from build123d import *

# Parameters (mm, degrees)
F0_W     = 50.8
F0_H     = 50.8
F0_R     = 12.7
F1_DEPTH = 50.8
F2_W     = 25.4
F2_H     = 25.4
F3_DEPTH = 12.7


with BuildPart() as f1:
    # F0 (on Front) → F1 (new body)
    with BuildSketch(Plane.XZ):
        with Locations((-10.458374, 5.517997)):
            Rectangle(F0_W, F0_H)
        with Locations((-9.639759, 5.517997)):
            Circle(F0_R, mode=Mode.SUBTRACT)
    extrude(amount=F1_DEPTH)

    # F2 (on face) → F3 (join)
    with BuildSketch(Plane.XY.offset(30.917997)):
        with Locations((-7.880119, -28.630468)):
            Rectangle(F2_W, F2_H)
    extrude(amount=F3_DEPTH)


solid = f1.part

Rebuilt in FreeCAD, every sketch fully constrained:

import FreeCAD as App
import Part
import Sketcher

V = App.Vector
Q = App.Units.Quantity


def add_polygon(sketch, points):
    """Adds a closed chain of lines whose ends are joined by coincident constraints."""
    first, n = sketch.GeometryCount, len(points)
    for a, b in zip(points, points[1:] + points[:1]):
        sketch.addGeometry(Part.LineSegment(App.Vector(*a, 0), App.Vector(*b, 0)), False)
    for i in range(n):
        sketch.addConstraint(Sketcher.Constraint("Coincident", first + i, 2, first + (i + 1) % n, 1))

doc = App.newDocument("Part")
body = doc.addObject("PartDesign::Body", "Body")

sketch1 = body.newObject("Sketcher::SketchObject", "Sketch")
sketch1.AttachmentSupport = (doc.getObject("XZ_Plane"), [""])
sketch1.MapMode = "FlatFace"
add_polygon(sketch1, [(-36, 31), (-36, -20), (15, -20), (15, 31)])
sketch1.addGeometry(Part.Circle(V(-10, 6, 0), V(0, 0, 1), 13), False)
sketch1.addConstraint([
    Sketcher.Constraint("Vertical", 0),
    Sketcher.Constraint("Horizontal", 1),
    Sketcher.Constraint("Vertical", 2),
    Sketcher.Constraint("Horizontal", 3),
    Sketcher.Constraint("Equal", 3, 0),
    Sketcher.Constraint("Diameter", 4, Q("1 in")),
    Sketcher.Constraint("DistanceX", 1, 1, 1, 2, Q("2 in")),
    Sketcher.Constraint("DistanceY", 0, 2, 4, 3, Q("1 in")),
    Sketcher.Constraint("DistanceX", 4, 3, -1, 1, 9.639759),
    Sketcher.Constraint("DistanceY", -1, 1, 4, 3, 5.517997),
    Sketcher.Constraint("DistanceX", 0, 2, -1, 1, 35.858374),
])
pad1 = body.newObject("PartDesign::Pad", "Pad")
pad1.Profile = sketch1
pad1.Length = Q("2 in")

sketch2 = body.newObject("Sketcher::SketchObject", "Sketch001")
sketch2.AttachmentSupport = (doc.getObject("XY_Plane"), [""])
sketch2.MapMode = "FlatFace"
sketch2.AttachmentOffset = App.Placement(V(0, 0, 30.917997), App.Rotation())
add_polygon(sketch2, [(-21, -16), (-21, -41), (5, -41), (5, -16)])
sketch2.addConstraint([
    Sketcher.Constraint("Vertical", 0),
    Sketcher.Constraint("Horizontal", 1),
    Sketcher.Constraint("Vertical", 2),
    Sketcher.Constraint("Horizontal", 3),
    Sketcher.Constraint("Equal", 3, 0),
    Sketcher.Constraint("DistanceX", 1, 1, 1, 2, Q("1 in")),
    Sketcher.Constraint("DistanceX", 0, 2, -1, 1, 20.580119),
    Sketcher.Constraint("DistanceY", 0, 2, -1, 1, 41.330468),
])
pad2 = body.newObject("PartDesign::Pad", "Pad001")
pad2.Profile = sketch2
pad2.Length = Q("0.5 in")

doc.recompute()
